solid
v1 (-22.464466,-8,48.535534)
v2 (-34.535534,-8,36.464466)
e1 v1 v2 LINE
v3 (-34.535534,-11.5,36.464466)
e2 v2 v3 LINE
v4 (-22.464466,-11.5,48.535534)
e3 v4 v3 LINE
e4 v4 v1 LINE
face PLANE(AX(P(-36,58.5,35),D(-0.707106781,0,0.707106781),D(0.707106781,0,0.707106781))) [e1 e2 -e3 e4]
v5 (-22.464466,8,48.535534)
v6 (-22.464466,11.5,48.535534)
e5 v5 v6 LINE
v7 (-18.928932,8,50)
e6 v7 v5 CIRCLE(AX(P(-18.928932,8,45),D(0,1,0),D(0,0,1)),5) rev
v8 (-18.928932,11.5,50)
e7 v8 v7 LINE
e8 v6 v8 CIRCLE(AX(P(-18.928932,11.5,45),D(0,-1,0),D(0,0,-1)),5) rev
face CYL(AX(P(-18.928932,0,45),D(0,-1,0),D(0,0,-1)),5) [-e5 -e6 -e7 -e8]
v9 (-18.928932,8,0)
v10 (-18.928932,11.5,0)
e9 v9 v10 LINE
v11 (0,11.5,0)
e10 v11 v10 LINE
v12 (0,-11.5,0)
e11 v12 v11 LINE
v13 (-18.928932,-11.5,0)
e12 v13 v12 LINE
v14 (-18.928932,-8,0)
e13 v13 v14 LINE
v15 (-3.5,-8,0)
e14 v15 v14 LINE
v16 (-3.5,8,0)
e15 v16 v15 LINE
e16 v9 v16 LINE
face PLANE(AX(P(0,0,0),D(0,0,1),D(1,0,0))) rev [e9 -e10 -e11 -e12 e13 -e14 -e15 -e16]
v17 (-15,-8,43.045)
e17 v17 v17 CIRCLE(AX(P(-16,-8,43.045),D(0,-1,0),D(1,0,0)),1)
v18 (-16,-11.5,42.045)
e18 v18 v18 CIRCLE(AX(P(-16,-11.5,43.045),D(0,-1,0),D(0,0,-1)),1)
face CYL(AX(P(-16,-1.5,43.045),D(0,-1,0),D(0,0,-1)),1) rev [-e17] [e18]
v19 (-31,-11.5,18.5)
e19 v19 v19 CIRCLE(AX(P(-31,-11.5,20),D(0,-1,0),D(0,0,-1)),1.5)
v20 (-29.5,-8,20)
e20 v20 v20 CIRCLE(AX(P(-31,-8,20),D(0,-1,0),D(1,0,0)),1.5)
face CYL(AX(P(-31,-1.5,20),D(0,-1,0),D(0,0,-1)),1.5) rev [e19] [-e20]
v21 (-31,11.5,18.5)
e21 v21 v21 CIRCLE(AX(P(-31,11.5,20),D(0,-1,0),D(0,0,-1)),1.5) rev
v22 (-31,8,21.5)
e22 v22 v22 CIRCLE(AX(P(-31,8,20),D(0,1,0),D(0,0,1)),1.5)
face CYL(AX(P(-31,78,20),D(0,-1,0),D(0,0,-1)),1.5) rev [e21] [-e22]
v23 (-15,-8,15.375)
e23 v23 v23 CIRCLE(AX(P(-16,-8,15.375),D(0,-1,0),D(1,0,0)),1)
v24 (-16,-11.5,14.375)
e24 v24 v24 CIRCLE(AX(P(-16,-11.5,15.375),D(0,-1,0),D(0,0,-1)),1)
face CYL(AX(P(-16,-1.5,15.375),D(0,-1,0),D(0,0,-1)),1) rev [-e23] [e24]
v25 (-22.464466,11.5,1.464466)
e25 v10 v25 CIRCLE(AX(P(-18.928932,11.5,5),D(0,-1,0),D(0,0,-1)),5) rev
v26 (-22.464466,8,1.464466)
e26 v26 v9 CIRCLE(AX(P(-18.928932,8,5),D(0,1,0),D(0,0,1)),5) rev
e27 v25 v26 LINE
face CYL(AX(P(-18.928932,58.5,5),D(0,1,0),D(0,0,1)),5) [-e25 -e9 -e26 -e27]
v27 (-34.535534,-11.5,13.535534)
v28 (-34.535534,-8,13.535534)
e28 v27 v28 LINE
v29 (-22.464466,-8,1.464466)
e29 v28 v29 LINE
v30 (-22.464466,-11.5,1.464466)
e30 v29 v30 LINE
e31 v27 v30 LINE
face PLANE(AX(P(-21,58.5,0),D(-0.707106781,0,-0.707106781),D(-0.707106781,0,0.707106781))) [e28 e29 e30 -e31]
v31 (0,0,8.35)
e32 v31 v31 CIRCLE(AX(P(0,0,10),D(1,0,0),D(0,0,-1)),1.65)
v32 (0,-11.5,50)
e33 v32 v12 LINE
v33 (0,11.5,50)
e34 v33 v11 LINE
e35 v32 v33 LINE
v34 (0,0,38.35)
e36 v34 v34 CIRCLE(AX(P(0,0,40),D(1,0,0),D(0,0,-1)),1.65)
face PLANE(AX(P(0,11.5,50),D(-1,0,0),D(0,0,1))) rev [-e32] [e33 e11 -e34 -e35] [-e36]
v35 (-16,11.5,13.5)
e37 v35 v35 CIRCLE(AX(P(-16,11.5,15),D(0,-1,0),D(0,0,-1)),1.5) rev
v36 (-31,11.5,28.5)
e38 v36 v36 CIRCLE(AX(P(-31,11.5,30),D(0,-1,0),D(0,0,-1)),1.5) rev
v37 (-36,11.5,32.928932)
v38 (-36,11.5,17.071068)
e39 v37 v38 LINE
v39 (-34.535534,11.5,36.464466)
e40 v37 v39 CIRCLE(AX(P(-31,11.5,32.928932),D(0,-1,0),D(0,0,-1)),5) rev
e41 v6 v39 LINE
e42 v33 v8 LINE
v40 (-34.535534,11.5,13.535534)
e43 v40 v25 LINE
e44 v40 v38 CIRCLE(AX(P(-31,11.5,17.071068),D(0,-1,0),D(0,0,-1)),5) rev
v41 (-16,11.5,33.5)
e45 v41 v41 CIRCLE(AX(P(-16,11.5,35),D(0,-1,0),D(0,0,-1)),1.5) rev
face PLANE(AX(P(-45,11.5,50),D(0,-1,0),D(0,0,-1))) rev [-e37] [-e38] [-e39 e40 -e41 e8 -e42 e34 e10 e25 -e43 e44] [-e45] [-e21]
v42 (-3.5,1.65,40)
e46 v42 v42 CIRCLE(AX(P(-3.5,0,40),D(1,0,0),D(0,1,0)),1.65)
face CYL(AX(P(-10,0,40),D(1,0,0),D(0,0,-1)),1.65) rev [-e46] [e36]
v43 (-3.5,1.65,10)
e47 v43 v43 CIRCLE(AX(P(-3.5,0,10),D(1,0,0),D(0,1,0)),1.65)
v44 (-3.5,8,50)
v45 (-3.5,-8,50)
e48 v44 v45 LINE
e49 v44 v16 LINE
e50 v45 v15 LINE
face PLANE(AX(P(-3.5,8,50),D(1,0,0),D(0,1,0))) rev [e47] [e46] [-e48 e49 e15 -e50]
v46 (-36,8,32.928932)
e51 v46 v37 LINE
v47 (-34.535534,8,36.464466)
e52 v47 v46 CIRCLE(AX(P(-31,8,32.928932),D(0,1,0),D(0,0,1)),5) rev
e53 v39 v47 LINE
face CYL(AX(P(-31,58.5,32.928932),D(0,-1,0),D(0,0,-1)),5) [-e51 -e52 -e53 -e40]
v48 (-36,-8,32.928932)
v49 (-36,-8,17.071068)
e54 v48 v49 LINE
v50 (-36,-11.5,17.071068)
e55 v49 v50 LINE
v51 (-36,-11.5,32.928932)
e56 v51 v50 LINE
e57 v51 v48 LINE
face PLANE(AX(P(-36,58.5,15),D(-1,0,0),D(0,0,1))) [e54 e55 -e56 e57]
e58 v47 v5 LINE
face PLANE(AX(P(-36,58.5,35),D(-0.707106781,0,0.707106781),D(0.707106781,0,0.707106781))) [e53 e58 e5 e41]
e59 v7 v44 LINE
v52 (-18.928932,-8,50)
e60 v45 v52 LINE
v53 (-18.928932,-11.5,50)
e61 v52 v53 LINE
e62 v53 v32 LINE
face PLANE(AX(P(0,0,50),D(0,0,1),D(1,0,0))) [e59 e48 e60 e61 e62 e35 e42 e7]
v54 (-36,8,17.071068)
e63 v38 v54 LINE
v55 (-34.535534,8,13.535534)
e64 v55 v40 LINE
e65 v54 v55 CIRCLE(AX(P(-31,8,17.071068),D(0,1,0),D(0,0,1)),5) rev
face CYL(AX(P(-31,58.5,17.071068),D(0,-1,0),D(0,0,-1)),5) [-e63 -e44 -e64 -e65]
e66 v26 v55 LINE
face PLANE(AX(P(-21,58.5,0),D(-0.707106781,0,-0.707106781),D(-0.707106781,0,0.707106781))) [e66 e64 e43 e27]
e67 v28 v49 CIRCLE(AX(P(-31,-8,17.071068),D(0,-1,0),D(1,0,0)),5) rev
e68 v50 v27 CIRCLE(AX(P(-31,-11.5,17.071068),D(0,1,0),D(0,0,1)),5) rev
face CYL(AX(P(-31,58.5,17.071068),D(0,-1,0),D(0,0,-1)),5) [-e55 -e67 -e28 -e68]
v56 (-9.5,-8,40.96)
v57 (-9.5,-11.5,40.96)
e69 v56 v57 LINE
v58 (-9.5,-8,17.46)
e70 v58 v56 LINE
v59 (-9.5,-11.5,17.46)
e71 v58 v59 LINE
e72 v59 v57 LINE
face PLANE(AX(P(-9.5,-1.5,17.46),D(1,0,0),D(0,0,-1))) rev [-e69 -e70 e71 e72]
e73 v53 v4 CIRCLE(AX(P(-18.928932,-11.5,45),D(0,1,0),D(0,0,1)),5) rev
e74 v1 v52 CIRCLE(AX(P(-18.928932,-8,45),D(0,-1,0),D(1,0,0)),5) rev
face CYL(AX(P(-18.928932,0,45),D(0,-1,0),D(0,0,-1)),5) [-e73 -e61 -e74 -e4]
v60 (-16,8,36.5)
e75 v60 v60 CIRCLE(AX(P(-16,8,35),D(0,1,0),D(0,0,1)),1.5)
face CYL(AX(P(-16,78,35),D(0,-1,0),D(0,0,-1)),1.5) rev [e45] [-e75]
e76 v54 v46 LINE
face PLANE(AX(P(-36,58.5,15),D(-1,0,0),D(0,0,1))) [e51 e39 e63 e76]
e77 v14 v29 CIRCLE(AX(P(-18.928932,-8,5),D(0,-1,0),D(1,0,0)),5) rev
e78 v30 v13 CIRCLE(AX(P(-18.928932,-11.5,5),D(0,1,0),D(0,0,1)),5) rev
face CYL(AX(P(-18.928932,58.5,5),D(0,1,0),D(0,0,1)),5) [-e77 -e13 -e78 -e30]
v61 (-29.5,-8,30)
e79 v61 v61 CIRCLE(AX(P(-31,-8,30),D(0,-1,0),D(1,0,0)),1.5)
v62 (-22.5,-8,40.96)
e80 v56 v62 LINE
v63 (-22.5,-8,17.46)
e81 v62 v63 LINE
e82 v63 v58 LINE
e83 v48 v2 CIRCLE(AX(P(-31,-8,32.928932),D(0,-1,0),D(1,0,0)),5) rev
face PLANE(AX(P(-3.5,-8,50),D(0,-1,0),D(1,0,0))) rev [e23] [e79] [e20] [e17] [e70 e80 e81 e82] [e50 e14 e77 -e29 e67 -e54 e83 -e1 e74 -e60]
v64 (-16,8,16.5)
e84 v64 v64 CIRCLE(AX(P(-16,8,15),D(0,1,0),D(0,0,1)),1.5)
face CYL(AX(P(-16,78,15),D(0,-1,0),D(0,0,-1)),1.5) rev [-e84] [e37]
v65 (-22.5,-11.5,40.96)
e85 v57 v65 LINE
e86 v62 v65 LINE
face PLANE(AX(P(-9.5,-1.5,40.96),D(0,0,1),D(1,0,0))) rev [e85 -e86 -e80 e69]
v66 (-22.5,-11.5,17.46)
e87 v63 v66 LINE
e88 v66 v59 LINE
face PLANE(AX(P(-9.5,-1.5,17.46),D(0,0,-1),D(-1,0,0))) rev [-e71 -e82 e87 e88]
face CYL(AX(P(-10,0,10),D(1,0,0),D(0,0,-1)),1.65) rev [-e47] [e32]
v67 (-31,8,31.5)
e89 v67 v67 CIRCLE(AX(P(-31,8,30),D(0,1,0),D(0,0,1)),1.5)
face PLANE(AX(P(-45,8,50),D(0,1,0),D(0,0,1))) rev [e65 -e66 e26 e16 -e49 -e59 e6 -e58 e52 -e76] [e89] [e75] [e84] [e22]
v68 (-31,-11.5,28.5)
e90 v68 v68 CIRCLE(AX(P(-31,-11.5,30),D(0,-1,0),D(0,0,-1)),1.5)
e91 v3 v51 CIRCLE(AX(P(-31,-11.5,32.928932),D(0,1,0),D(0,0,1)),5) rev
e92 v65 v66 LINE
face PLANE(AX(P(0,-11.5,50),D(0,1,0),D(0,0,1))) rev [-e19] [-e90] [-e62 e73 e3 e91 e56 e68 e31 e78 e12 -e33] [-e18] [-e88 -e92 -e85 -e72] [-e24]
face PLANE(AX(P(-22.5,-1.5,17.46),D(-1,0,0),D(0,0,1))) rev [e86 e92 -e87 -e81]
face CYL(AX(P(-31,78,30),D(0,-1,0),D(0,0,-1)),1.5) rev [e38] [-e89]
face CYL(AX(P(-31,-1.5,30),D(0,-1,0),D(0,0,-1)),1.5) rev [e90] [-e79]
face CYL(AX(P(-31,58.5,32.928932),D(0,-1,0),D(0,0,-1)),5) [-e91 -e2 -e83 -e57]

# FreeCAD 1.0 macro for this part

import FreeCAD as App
import Part
import Sketcher
from FreeCAD import Vector


def edges_at(feature, points):
    """Names of the edges that pass closest to the given points."""
    edges = feature.Shape.Edges
    near = lambda p: min(range(len(edges)), key=lambda i: edges[i].distToShape(Part.Vertex(*p))[0])
    return sorted({f"Edge{near(p) + 1}" for p in points})


def add_polygon(sketch, points):
    """Adds a closed chain of lines whose ends are joined by coincident constraints."""
    first, n = sketch.GeometryCount, len(points)
    for a, b in zip(points, points[1:] + points[:1]):
        sketch.addGeometry(Part.LineSegment(App.Vector(*a, 0), App.Vector(*b, 0)), False)
    for i in range(n):
        sketch.addConstraint(Sketcher.Constraint("Coincident", first + i, 2, first + (i + 1) % n, 1))

doc = App.newDocument("Part")
body = doc.addObject("PartDesign::Body", "Body")

# Sketch on XY plane
sketch1 = body.newObject("Sketcher::SketchObject", "Sketch")
sketch1.AttachmentSupport = (doc.getObject("XY_Plane"), [""])
sketch1.MapMode = "FlatFace"
add_polygon(sketch1, [(0, 11.5), (-45, 11.5), (-45, 8), (-3.5, 8), (-3.5, -8), (-45, -8), (-45, -11.5), (0, -11.5)])  # lines 0-7
sketch1.addConstraint([
    Sketcher.Constraint("Horizontal", 0),
    Sketcher.Constraint("Vertical", 1),
    Sketcher.Constraint("Horizontal", 2),
    Sketcher.Constraint("Vertical", 3),
    Sketcher.Constraint("Horizontal", 4),
    Sketcher.Constraint("Vertical", 5),
    Sketcher.Constraint("Horizontal", 6),
    Sketcher.Constraint("Vertical", 7),
    Sketcher.Constraint("Symmetric", 6, 2, 7, 2, -1, 1),
    Sketcher.Constraint("Symmetric", 1, 2, 4, 2, -1),
    Sketcher.Constraint("DistanceX", 0, 2, 0, 1, 45.0),
    Sketcher.Constraint("DistanceY", 3, 2, 3, 1, 16.0),
    Sketcher.Constraint("DistanceY", 7, 1, 7, 2, 23.0),
    Sketcher.Constraint("DistanceX", 2, 1, 2, 2, 41.5),
])
pad1 = body.newObject("PartDesign::Pad", "Pad")
pad1.Profile = sketch1
pad1.Length = 50

# Sketch on XZ plane
sketch2 = body.newObject("Sketcher::SketchObject", "Sketch001")
sketch2.AttachmentSupport = (doc.getObject("XZ_Plane"), [""])
sketch2.MapMode = "FlatFace"
sketch2.AttachmentOffset = App.Placement(Vector(0, 0, -8), App.Rotation())
sketch2.addGeometry([
    Part.Circle(Vector(-16, 35, 0), Vector(0, 0, 1), 1.5),
    Part.Circle(Vector(-16, 15, 0), Vector(0, 0, 1), 1.5),
    Part.Circle(Vector(-31, 30, 0), Vector(0, 0, 1), 1.5),
    Part.Circle(Vector(-31, 20, 0), Vector(0, 0, 1), 1.5),
], False)
sketch2.addConstraint([
    Sketcher.Constraint("Equal", 0, 1),
    Sketcher.Constraint("Equal", 1, 2),
    Sketcher.Constraint("Equal", 2, 3),
    Sketcher.Constraint("Vertical", 0, 3, 1, 3),
    Sketcher.Constraint("Vertical", 2, 3, 3, 3),
    Sketcher.Constraint("Diameter", 0, 3.0),
    Sketcher.Constraint("DistanceX", 0, 3, -1, 1, 16.0),
    Sketcher.Constraint("DistanceY", -1, 1, 0, 3, 35.0),
    Sketcher.Constraint("DistanceY", -1, 1, 1, 3, 15.0),
    Sketcher.Constraint("DistanceX", 2, 3, -1, 1, 31.0),
    Sketcher.Constraint("DistanceY", -1, 1, 2, 3, 30.0),
    Sketcher.Constraint("DistanceY", -1, 1, 3, 3, 20.0),
])
pocket1 = body.newObject("PartDesign::Pocket", "Pocket")
pocket1.Profile = sketch2
pocket1.Length = 70

# Sketch on XZ plane
sketch3 = body.newObject("Sketcher::SketchObject", "Sketch002")
sketch3.AttachmentSupport = (doc.getObject("XZ_Plane"), [""])
sketch3.MapMode = "FlatFace"
sketch3.AttachmentOffset = App.Placement(Vector(0, 0, 11.5), App.Rotation())
add_polygon(sketch3, [(-53.109, 58.109), (-53.109, -8.109), (8.109, -8.109), (8.109, 58.109)])  # lines 0-3
add_polygon(sketch3, [(0, 0), (-21, 0), (-36, 15), (-36, 35), (-21, 50), (0, 50)])  # lines 4-9
sketch3.addConstraint([
    Sketcher.Constraint("Vertical", 0),
    Sketcher.Constraint("Horizontal", 1),
    Sketcher.Constraint("Vertical", 2),
    Sketcher.Constraint("Horizontal", 3),
    Sketcher.Constraint("Horizontal", 4),
    Sketcher.Constraint("Vertical", 6),
    Sketcher.Constraint("Horizontal", 8),
    Sketcher.Constraint("Vertical", 9),
    Sketcher.Constraint("Coincident", 9, 2, -1, 1),
    Sketcher.Constraint("Perpendicular", 5, 7),
    Sketcher.Constraint("Vertical", 4, 2, 7, 2),
    Sketcher.Constraint("Equal", 5, 7),
    Sketcher.Constraint("DistanceX", 4, 2, 4, 1, 21.0),
    Sketcher.Constraint("DistanceY", 6, 1, 6, 2, 20.0),
    Sketcher.Constraint("DistanceY", 9, 2, 9, 1, 50.0),
    Sketcher.Constraint("DistanceX", 1, 1, 1, 2, 61.218),
    Sketcher.Constraint("DistanceY", 0, 2, 0, 1, 66.218),
    Sketcher.Constraint("DistanceX", 0, 2, -1, 1, 53.109),
    Sketcher.Constraint("DistanceY", 0, 2, -1, 1, 8.109),
])
pocket2 = body.newObject("PartDesign::Pocket", "Pocket001")
pocket2.Profile = sketch3
pocket2.Length = 70

# Sketch on XZ plane
sketch4 = body.newObject("Sketcher::SketchObject", "Sketch003")
sketch4.AttachmentSupport = (doc.getObject("XZ_Plane"), [""])
sketch4.MapMode = "FlatFace"
sketch4.AttachmentOffset = App.Placement(Vector(0, 0, 11.5), App.Rotation())
sketch4.addGeometry([
    Part.Circle(Vector(-31, 30, 0), Vector(0, 0, 1), 1.5),
    Part.Circle(Vector(-31, 20, 0), Vector(0, 0, 1), 1.5),
], False)
sketch4.addConstraint([
    Sketcher.Constraint("Equal", 0, 1),
    Sketcher.Constraint("Vertical", 0, 3, 1, 3),
    Sketcher.Constraint("Diameter", 0, 3.0),
    Sketcher.Constraint("DistanceX", 0, 3, -1, 1, 31.0),
    Sketcher.Constraint("DistanceY", -1, 1, 0, 3, 30.0),
    Sketcher.Constraint("DistanceY", -1, 1, 1, 3, 20.0),
])
pocket3 = body.newObject("PartDesign::Pocket", "Pocket002")
pocket3.Profile = sketch4
pocket3.Length = 10

# Sketch on XZ plane
sketch5 = body.newObject("Sketcher::SketchObject", "Sketch004")
sketch5.AttachmentSupport = (doc.getObject("XZ_Plane"), [""])
sketch5.MapMode = "FlatFace"
sketch5.AttachmentOffset = App.Placement(Vector(0, 0, 11.5), App.Rotation())
sketch5.addGeometry([
    Part.Circle(Vector(-16, 43.045, 0), Vector(0, 0, 1), 1),
    Part.Circle(Vector(-16, 15.375, 0), Vector(0, 0, 1), 1),
], False)
sketch5.addConstraint([
    Sketcher.Constraint("Equal", 0, 1),
    Sketcher.Constraint("Vertical", 0, 3, 1, 3),
    Sketcher.Constraint("Diameter", 0, 2.0),
    Sketcher.Constraint("DistanceX", 0, 3, -1, 1, 16.0),
    Sketcher.Constraint("DistanceY", 1, 3, 0, 3, 27.67),
    Sketcher.Constraint("DistanceY", -1, 1, 0, 3, 43.045),
])
pocket4 = body.newObject("PartDesign::Pocket", "Pocket003")
pocket4.Profile = sketch5
pocket4.Length = 10
doc.recompute()

fillet = body.newObject("PartDesign::Fillet", "Fillet")
fillet.Base = (pocket4, edges_at(pocket4, [
    (-21, -9.75, 0),
    (-21, 9.75, 0),
    (-21, -9.75, 50),
    (-21, 9.75, 50),
    (-36, 9.75, 35),
    (-36, -9.75, 35),
    (-36, 9.75, 15),
    (-36, -9.75, 15),
]))
fillet.Radius = 5

# Sketch on XZ plane
sketch6 = body.newObject("Sketcher::SketchObject", "Sketch005")
sketch6.AttachmentSupport = (doc.getObject("XZ_Plane"), [""])
sketch6.MapMode = "FlatFace"
sketch6.AttachmentOffset = App.Placement(Vector(0, 0, 11.5), App.Rotation())
add_polygon(sketch6, [(-22.5, 40.96), (-22.5, 17.46), (-9.5, 17.46), (-9.5, 40.96)])  # lines 0-3
sketch6.addConstraint([
    Sketcher.Constraint("Vertical", 0),
    Sketcher.Constraint("Horizontal", 1),
    Sketcher.Constraint("Vertical", 2),
    Sketcher.Constraint("Horizontal", 3),
    Sketcher.Constraint("DistanceX", 1, 1, 1, 2, 13.0),
    Sketcher.Constraint("DistanceY", 0, 2, 0, 1, 23.5),
    Sketcher.Constraint("DistanceX", 0, 2, -1, 1, 22.5),
    Sketcher.Constraint("DistanceY", -1, 1, 0, 2, 17.46),
])
pocket5 = body.newObject("PartDesign::Pocket", "Pocket004")
pocket5.Profile = sketch6
pocket5.Length = 10

# Sketch on YZ plane
sketch7 = body.newObject("Sketcher::SketchObject", "Sketch006")
sketch7.AttachmentSupport = (doc.getObject("YZ_Plane"), [""])
sketch7.MapMode = "FlatFace"
sketch7.addGeometry([
    Part.Circle(Vector(0, 10, 0), Vector(0, 0, 1), 1.65),
    Part.Circle(Vector(0, 40, 0), Vector(0, 0, 1), 1.65),
], False)
sketch7.addConstraint([
    Sketcher.Constraint("Equal", 0, 1),
    Sketcher.Constraint("PointOnObject", 0, 3, -2),
    Sketcher.Constraint("PointOnObject", 1, 3, -2),
    Sketcher.Constraint("Diameter", 0, 3.3),
    Sketcher.Constraint("DistanceY", -1, 1, 0, 3, 10.0),
    Sketcher.Constraint("DistanceY", -1, 1, 1, 3, 40.0),
])
pocket6 = body.newObject("PartDesign::Pocket", "Pocket005")
pocket6.Profile = sketch7
pocket6.Length = 10

doc.recompute()
